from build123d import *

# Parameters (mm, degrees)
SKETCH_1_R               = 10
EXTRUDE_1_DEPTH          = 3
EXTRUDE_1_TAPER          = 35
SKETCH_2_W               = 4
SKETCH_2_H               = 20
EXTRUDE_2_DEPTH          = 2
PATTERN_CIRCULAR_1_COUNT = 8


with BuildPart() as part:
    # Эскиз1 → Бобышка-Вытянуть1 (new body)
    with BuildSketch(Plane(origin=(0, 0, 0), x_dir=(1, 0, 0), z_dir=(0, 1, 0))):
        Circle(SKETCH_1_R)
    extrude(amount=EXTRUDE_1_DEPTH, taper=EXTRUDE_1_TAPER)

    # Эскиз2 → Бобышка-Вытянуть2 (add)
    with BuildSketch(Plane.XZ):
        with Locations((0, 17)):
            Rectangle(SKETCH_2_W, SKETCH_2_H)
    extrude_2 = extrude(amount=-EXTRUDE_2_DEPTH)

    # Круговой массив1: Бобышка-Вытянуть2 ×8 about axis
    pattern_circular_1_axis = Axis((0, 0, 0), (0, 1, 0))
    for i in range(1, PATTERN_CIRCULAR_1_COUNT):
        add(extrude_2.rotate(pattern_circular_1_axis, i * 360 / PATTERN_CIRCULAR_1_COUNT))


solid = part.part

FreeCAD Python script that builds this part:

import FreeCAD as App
import Part
import Sketcher

doc = App.newDocument("Part")
body = doc.addObject("PartDesign::Body", "Body")

# Sketch on XZ plane
sketch1 = body.newObject("Sketcher::SketchObject", "Sketch")
sketch1.AttachmentSupport = (doc.getObject("XZ_Plane"), [""])
sketch1.MapMode = "FlatFace"
sketch1.addGeometry(Part.Circle(App.Vector(0, 0, 0), App.Vector(0, 0, 1), 10), False)
sketch1.addConstraint([
    Sketcher.Constraint("Coincident", 0, 3, -1, 1),
    Sketcher.Constraint("Diameter", 0, 20.0),
])
pad1 = body.newObject("PartDesign::Pad", "Pad")
pad1.Profile = sketch1
pad1.Length = 3
pad1.Reversed = True
pad1.TaperAngle = -35

# Sketch on XZ plane
sketch2 = body.newObject("Sketcher::SketchObject", "Sketch001")
sketch2.AttachmentSupport = (doc.getObject("XZ_Plane"), [""])
sketch2.MapMode = "FlatFace"
sketch2.addGeometry([
    Part.LineSegment(App.Vector(-2, 27, 0), App.Vector(-2, 7, 0)),
    Part.LineSegment(App.Vector(-2, 7, 0), App.Vector(2, 7, 0)),
    Part.LineSegment(App.Vector(2, 7, 0), App.Vector(2, 27, 0)),
    Part.LineSegment(App.Vector(2, 27, 0), App.Vector(-2, 27, 0)),
], False)
sketch2.addConstraint([
    Sketcher.Constraint("Coincident", 0, 2, 1, 1),
    Sketcher.Constraint("Coincident", 1, 2, 2, 1),
    Sketcher.Constraint("Coincident", 2, 2, 3, 1),
    Sketcher.Constraint("Coincident", 3, 2, 0, 1),
    Sketcher.Constraint("Vertical", 0),
    Sketcher.Constraint("Horizontal", 1),
    Sketcher.Constraint("Vertical", 2),
    Sketcher.Constraint("Horizontal", 3),
    Sketcher.Constraint("DistanceX", 1, 1, 1, 2, 4.0),
    Sketcher.Constraint("DistanceY", 0, 2, 0, 1, 20.0),
    Sketcher.Constraint("DistanceX", 0, 2, -1, 1, 2.0),
    Sketcher.Constraint("DistanceY", -1, 1, 0, 2, 7.0),
])
pad2 = body.newObject("PartDesign::Pad", "Pad001")
pad2.Profile = sketch2
pad2.Length = 2
pad2.Reversed = True
doc.recompute()

polarpattern = body.newObject("PartDesign::PolarPattern", "PolarPattern")
polarpattern.Originals = [pad2]
polarpattern.Axis = (doc.getObject("Y_Axis"), [""])
polarpattern.Angle = 360
polarpattern.Occurrences = 8
body.Tip = polarpattern

doc.recompute()
